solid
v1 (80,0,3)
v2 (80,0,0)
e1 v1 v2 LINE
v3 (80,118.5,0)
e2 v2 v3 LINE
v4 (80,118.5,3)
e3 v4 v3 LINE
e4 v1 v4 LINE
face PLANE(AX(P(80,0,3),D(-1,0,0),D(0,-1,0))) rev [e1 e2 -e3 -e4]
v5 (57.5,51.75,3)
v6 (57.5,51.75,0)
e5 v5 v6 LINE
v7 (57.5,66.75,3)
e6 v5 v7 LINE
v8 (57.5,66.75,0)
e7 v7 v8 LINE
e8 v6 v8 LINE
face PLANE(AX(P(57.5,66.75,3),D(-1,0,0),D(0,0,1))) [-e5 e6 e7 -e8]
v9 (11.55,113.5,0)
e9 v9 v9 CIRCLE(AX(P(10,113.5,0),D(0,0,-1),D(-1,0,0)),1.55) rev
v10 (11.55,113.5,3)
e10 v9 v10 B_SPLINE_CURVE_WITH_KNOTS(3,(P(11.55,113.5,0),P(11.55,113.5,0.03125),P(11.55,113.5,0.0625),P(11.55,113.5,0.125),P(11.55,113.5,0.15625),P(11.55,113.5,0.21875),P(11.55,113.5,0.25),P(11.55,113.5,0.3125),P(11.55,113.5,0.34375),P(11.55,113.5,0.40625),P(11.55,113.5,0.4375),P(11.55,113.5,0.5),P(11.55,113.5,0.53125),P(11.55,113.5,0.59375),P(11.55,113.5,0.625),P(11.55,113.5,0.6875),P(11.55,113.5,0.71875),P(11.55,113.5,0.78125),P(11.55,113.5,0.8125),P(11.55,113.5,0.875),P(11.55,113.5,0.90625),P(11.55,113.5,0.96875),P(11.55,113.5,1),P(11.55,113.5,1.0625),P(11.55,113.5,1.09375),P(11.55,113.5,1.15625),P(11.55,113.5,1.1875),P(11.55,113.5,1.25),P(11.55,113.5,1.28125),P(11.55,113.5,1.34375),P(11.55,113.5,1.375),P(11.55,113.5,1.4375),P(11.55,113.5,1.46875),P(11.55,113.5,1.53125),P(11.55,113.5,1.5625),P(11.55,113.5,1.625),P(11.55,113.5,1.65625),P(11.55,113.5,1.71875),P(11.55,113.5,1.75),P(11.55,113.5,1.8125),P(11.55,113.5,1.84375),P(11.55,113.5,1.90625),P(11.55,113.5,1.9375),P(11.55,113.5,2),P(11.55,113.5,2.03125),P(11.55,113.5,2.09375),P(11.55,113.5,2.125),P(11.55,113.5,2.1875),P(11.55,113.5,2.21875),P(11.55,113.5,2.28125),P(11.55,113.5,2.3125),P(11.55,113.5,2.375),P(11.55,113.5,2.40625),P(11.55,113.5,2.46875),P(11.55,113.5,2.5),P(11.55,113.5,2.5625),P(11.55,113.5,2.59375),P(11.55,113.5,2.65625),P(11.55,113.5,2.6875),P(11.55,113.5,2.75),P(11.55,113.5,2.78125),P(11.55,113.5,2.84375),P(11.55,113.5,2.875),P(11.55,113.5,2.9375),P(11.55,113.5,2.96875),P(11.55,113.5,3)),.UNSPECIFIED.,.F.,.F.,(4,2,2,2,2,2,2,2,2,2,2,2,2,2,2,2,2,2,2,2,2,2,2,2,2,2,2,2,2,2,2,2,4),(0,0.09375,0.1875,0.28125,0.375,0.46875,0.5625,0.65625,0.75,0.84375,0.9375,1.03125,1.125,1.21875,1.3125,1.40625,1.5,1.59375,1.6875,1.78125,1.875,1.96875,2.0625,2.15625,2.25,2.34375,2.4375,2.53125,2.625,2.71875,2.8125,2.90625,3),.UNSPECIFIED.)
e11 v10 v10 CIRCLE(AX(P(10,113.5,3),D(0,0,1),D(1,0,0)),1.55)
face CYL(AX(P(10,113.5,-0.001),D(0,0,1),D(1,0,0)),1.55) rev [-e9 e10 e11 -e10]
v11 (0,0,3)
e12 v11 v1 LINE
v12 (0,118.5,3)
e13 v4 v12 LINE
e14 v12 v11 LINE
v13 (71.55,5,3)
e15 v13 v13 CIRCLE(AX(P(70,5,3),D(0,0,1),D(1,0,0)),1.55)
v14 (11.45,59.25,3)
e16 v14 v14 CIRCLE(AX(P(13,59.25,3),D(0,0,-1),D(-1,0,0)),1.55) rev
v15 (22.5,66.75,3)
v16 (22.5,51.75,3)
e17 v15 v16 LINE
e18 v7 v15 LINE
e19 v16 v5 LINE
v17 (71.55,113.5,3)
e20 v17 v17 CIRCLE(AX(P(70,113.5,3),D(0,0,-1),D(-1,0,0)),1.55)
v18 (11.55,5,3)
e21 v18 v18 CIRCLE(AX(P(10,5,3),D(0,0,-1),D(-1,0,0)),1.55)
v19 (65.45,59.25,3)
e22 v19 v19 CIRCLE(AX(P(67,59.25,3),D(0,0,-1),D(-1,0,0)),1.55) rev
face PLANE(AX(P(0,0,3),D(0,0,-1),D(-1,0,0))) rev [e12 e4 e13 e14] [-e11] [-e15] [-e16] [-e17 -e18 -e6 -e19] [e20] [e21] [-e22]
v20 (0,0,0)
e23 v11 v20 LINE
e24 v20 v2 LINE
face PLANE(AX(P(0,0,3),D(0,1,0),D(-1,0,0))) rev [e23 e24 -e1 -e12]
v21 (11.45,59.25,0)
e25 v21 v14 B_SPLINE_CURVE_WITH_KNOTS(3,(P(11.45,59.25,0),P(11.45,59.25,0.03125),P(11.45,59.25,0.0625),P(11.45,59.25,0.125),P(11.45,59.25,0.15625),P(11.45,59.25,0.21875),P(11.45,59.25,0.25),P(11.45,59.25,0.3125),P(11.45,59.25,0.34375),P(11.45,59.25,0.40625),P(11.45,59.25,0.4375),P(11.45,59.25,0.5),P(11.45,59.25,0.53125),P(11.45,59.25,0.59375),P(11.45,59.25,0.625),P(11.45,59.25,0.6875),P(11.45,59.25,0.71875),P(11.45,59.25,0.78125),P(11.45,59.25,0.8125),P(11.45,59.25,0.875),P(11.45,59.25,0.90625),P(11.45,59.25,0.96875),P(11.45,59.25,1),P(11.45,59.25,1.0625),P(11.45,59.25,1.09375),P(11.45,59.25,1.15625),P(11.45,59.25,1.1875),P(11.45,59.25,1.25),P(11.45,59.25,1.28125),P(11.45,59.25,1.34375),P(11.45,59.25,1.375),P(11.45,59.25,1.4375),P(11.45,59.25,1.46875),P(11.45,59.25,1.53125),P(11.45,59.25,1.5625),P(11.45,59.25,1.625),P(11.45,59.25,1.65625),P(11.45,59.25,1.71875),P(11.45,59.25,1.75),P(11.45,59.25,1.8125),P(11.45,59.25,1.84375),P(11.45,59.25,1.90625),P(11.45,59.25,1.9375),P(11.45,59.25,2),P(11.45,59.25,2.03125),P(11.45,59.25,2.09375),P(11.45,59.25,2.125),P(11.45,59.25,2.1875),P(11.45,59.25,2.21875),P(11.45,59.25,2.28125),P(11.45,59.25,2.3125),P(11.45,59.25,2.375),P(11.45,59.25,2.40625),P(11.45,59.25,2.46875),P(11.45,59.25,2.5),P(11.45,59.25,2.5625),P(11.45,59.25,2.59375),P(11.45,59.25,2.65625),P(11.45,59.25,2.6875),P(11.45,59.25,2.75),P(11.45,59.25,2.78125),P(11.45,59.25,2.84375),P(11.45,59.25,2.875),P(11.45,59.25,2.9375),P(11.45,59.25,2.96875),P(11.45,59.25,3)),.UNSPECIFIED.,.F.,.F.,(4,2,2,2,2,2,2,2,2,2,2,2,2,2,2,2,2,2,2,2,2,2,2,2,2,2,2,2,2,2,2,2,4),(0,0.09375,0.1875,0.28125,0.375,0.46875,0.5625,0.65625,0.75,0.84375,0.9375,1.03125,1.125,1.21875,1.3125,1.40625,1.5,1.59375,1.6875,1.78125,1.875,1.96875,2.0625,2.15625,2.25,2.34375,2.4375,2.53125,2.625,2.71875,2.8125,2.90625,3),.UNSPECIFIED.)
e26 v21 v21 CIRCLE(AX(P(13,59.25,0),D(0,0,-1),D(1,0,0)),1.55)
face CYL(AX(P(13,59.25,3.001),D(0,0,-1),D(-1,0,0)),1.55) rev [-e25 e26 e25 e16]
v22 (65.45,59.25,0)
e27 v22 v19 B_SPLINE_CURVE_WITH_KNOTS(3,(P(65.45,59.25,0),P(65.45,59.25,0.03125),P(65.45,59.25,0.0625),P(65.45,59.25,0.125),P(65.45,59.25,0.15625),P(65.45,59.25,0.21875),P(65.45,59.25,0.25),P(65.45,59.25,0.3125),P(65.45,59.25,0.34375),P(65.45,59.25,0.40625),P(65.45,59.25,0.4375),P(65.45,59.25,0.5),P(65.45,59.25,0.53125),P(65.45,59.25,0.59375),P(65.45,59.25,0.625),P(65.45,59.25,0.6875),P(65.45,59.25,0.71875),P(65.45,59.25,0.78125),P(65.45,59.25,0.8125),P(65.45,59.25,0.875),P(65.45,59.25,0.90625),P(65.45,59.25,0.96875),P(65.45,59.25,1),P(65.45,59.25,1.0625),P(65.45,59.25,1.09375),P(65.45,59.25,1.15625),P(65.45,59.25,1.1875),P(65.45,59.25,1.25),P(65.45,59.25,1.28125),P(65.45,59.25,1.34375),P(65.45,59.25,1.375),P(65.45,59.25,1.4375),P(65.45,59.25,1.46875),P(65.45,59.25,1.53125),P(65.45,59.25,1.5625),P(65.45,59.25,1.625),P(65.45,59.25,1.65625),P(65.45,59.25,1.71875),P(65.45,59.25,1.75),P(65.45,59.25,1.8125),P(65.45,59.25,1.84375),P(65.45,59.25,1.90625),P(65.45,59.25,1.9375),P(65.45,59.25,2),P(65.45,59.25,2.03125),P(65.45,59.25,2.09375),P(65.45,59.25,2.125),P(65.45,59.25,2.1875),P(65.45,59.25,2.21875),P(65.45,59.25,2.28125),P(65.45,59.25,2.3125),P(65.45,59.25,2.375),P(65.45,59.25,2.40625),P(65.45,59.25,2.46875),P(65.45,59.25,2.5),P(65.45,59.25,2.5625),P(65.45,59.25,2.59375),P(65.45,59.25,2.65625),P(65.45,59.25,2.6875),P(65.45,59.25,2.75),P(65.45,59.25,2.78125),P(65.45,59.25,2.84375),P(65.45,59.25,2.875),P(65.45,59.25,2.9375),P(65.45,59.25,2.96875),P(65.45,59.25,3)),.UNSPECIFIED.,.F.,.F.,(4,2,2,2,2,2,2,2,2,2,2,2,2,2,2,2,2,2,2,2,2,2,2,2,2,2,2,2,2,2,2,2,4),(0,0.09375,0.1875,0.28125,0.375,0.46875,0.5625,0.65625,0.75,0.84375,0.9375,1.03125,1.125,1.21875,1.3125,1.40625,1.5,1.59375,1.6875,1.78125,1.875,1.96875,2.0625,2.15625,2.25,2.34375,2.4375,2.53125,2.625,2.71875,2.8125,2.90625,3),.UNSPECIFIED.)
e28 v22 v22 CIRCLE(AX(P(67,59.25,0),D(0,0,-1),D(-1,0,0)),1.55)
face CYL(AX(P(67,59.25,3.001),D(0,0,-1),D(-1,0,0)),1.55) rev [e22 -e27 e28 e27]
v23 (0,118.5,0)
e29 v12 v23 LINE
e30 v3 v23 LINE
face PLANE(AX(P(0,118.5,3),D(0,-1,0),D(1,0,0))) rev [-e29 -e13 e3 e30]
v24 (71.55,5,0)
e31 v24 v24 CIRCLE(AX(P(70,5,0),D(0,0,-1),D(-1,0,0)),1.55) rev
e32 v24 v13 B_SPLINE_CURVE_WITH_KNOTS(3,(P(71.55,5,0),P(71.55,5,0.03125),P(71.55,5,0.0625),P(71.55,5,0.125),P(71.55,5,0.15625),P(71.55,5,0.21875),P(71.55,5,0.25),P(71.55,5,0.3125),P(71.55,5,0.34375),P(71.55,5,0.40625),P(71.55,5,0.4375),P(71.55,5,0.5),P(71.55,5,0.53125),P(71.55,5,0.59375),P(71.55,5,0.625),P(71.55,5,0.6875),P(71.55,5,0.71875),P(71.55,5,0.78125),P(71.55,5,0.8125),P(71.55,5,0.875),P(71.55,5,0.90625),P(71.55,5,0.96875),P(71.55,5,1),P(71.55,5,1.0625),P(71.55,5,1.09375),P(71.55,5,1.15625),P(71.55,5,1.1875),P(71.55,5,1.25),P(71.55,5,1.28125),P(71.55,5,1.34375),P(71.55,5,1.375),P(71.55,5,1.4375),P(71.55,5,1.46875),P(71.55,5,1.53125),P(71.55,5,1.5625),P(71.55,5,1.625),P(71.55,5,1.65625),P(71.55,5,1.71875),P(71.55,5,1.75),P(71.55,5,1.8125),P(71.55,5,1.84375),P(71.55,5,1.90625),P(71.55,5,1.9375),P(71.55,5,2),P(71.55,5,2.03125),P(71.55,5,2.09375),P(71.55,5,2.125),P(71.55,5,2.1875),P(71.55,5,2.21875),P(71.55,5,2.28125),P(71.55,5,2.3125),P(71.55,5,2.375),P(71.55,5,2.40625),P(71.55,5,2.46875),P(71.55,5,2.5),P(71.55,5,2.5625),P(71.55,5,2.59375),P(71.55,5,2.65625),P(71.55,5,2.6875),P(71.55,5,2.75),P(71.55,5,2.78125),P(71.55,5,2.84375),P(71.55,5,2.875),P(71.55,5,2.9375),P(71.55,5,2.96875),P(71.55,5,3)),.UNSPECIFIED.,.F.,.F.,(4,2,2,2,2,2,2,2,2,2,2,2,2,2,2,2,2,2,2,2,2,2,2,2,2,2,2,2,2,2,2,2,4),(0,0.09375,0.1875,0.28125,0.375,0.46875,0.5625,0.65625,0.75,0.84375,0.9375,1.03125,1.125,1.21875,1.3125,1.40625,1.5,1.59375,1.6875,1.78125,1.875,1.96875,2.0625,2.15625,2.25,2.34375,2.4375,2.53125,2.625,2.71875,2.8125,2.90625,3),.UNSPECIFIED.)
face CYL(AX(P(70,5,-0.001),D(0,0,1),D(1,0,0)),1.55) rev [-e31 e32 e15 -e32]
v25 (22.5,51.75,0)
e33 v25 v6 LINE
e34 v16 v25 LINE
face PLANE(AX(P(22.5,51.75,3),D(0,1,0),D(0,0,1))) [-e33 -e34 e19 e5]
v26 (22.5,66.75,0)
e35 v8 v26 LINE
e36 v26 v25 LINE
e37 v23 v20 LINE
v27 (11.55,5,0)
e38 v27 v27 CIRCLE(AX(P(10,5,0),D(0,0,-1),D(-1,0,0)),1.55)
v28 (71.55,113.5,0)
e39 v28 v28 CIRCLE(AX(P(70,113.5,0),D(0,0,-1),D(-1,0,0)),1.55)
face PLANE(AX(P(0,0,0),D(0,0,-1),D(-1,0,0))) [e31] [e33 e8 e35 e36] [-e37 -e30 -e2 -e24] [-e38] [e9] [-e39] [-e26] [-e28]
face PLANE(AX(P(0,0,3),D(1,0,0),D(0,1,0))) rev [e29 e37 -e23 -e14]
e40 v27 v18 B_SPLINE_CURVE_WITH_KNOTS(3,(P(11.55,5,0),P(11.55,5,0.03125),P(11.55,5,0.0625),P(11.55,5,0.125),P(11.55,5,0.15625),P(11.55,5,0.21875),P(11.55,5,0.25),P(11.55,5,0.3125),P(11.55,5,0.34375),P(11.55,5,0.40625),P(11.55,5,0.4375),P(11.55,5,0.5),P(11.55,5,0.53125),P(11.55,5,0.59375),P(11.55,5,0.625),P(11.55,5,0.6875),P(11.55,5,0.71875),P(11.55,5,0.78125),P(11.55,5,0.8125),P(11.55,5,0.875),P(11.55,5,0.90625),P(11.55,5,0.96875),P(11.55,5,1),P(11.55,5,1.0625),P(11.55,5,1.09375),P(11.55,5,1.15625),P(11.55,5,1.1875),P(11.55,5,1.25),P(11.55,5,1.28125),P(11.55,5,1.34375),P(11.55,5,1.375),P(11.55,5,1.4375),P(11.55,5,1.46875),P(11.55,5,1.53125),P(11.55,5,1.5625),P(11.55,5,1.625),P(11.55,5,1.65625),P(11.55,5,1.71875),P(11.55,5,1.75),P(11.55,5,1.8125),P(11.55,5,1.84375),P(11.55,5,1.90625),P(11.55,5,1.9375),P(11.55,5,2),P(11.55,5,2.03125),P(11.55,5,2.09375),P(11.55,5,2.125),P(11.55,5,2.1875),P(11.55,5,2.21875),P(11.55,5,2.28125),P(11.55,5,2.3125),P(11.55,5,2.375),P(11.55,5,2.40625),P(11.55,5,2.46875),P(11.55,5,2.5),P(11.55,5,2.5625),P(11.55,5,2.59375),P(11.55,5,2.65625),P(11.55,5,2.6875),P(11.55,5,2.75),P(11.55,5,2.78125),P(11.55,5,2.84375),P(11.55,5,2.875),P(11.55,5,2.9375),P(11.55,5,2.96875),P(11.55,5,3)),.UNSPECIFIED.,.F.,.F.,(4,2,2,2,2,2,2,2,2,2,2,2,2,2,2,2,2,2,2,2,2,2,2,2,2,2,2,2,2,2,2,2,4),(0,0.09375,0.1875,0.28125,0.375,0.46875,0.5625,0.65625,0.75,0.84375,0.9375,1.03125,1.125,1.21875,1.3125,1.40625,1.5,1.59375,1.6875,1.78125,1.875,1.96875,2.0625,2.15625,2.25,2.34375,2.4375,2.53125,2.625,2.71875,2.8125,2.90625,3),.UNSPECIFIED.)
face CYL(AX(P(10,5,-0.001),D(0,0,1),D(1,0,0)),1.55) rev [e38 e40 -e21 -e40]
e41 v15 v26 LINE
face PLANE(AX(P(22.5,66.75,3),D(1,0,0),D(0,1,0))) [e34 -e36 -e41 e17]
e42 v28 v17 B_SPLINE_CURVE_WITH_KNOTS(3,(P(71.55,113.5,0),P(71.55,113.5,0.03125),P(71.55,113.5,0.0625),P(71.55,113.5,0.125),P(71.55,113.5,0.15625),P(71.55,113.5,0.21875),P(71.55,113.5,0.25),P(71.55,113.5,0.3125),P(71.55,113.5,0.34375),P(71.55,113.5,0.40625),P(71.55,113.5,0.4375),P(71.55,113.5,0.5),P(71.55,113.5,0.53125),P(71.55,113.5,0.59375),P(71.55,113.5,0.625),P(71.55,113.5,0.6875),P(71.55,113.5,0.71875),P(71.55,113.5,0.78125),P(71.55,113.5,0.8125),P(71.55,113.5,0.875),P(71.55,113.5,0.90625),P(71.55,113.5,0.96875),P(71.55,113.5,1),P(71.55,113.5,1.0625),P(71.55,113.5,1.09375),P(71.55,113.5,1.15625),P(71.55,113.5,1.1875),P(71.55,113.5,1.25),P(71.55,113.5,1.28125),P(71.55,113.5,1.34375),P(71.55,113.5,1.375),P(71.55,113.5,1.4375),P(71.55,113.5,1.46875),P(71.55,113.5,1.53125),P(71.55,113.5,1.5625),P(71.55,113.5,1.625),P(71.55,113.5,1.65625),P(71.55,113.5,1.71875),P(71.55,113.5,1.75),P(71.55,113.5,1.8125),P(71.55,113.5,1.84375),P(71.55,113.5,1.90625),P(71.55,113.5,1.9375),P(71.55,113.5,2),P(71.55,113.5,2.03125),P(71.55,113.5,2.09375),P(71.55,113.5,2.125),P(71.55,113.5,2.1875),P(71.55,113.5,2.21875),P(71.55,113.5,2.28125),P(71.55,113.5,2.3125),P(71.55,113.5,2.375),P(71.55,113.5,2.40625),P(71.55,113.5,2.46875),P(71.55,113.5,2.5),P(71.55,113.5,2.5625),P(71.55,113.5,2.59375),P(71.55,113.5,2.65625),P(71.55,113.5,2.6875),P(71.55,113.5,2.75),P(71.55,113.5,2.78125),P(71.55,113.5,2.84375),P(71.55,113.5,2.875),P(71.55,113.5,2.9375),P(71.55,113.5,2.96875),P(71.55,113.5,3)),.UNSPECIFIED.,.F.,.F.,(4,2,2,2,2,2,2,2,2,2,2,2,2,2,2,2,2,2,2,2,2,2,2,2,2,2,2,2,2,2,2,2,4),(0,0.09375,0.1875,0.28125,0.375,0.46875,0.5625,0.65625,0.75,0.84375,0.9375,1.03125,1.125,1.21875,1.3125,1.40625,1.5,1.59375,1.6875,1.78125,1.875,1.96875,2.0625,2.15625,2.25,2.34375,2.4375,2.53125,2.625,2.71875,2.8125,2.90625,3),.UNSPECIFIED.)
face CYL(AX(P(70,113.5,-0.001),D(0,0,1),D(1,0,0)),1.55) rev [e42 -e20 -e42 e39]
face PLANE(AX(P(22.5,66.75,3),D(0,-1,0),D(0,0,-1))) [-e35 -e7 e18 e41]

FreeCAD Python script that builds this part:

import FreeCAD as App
import Part
import Sketcher


def add_polygon(sketch, points):
    """Adds a closed chain of lines whose ends are joined by coincident constraints."""
    first, n = sketch.GeometryCount, len(points)
    for a, b in zip(points, points[1:] + points[:1]):
        sketch.addGeometry(Part.LineSegment(App.Vector(*a, 0), App.Vector(*b, 0)), False)
    for i in range(n):
        sketch.addConstraint(Sketcher.Constraint("Coincident", first + i, 2, first + (i + 1) % n, 1))

doc = App.newDocument("Part")
body = doc.addObject("PartDesign::Body", "Body")

# Sketch on XY plane
sketch1 = doc.addObject("Sketcher::SketchObject", "Sketch")
body.addObject(sketch1)
sketch1.AttachmentSupport = (doc.XY_Plane, [""])
sketch1.MapMode = "FlatFace"
add_polygon(sketch1, [(0, 118), (0, 0), (80, 0), (80, 118)])  # lines 0-3
add_polygon(sketch1, [(58, 52), (22, 52), (22, 67), (58, 67)])  # lines 4-7
sketch1.addConstraint([
    Sketcher.Constraint("Vertical", 0),
    Sketcher.Constraint("Horizontal", 1),
    Sketcher.Constraint("Vertical", 2),
    Sketcher.Constraint("Horizontal", 3),
    Sketcher.Constraint("Horizontal", 4),
    Sketcher.Constraint("Vertical", 5),
    Sketcher.Constraint("Horizontal", 6),
    Sketcher.Constraint("Vertical", 7),
    Sketcher.Constraint("Coincident", 0, 2, -1, 1),
    Sketcher.Constraint("DistanceX", 1, 1, 1, 2, 80.0),
    Sketcher.Constraint("DistanceX", 4, 2, 4, 1, 35.0),
    Sketcher.Constraint("DistanceY", 5, 1, 5, 2, 15.0),
    Sketcher.Constraint("DistanceY", 0, 2, 0, 1, 118.5),
    Sketcher.Constraint("DistanceX", -1, 1, 4, 2, 22.5),
    Sketcher.Constraint("DistanceY", -1, 1, 4, 2, 51.75),
])
pad1 = doc.addObject("PartDesign::Pad", "Pad")
body.addObject(pad1)
pad1.Profile = sketch1
pad1.Length = 3

# Sketch on XY plane
sketch2 = doc.addObject("Sketcher::SketchObject", "Sketch001")
body.addObject(sketch2)
sketch2.AttachmentSupport = (doc.XY_Plane, [""])
sketch2.MapMode = "FlatFace"
sketch2.AttachmentOffset = App.Placement(App.Vector(0, 0, 3), App.Rotation())
sketch2.addGeometry(Part.Circle(App.Vector(10, 113.5, 0), App.Vector(0, 0, 1), 1.6), False)
sketch2.addConstraint([
    Sketcher.Constraint("Diameter", 0, 3.1),
    Sketcher.Constraint("DistanceX", -1, 1, 0, 3, 10.0),
    Sketcher.Constraint("DistanceY", -1, 1, 0, 3, 113.5),
])
pocket1 = doc.addObject("PartDesign::Pocket", "Pocket")
body.addObject(pocket1)
pocket1.Profile = sketch2
pocket1.Type = "UpToFirst"

# Sketch on XY plane
sketch3 = doc.addObject("Sketcher::SketchObject", "Sketch002")
body.addObject(sketch3)
sketch3.AttachmentSupport = (doc.XY_Plane, [""])
sketch3.MapMode = "FlatFace"
sketch3.AttachmentOffset = App.Placement(App.Vector(0, 0, 3), App.Rotation())
sketch3.addGeometry(Part.Circle(App.Vector(70, 113.5, 0), App.Vector(0, 0, 1), 1.6), False)
sketch3.addConstraint([
    Sketcher.Constraint("Diameter", 0, 3.1),
    Sketcher.Constraint("DistanceX", -1, 1, 0, 3, 70.0),
    Sketcher.Constraint("DistanceY", -1, 1, 0, 3, 113.5),
])
pocket2 = doc.addObject("PartDesign::Pocket", "Pocket001")
body.addObject(pocket2)
pocket2.Profile = sketch3
pocket2.Type = "UpToFirst"

# Sketch on XY plane
sketch4 = doc.addObject("Sketcher::SketchObject", "Sketch003")
body.addObject(sketch4)
sketch4.AttachmentSupport = (doc.XY_Plane, [""])
sketch4.MapMode = "FlatFace"
sketch4.AttachmentOffset = App.Placement(App.Vector(0, 0, 3), App.Rotation())
sketch4.addGeometry(Part.Circle(App.Vector(70, 5, 0), App.Vector(0, 0, 1), 1.6), False)
sketch4.addConstraint([
    Sketcher.Constraint("Diameter", 0, 3.1),
    Sketcher.Constraint("DistanceX", -1, 1, 0, 3, 70.0),
    Sketcher.Constraint("DistanceY", -1, 1, 0, 3, 5.0),
])
pocket3 = doc.addObject("PartDesign::Pocket", "Pocket002")
body.addObject(pocket3)
pocket3.Profile = sketch4
pocket3.Type = "UpToFirst"

# Sketch on XY plane
sketch5 = doc.addObject("Sketcher::SketchObject", "Sketch004")
body.addObject(sketch5)
sketch5.AttachmentSupport = (doc.XY_Plane, [""])
sketch5.MapMode = "FlatFace"
sketch5.AttachmentOffset = App.Placement(App.Vector(0, 0, 3), App.Rotation())
sketch5.addGeometry(Part.Circle(App.Vector(10, 5, 0), App.Vector(0, 0, 1), 1.6), False)
sketch5.addConstraint([
    Sketcher.Constraint("Diameter", 0, 3.1),
    Sketcher.Constraint("DistanceX", -1, 1, 0, 3, 10.0),
    Sketcher.Constraint("DistanceY", -1, 1, 0, 3, 5.0),
])
pocket4 = doc.addObject("PartDesign::Pocket", "Pocket003")
body.addObject(pocket4)
pocket4.Profile = sketch5
pocket4.Type = "UpToFirst"

# Sketch on XY plane
sketch6 = doc.addObject("Sketcher::SketchObject", "Sketch005")
body.addObject(sketch6)
sketch6.AttachmentSupport = (doc.XY_Plane, [""])
sketch6.MapMode = "FlatFace"
sketch6.addGeometry(Part.Circle(App.Vector(67, 59.2, 0), App.Vector(0, 0, 1), 1.6), False)
sketch6.addConstraint([
    Sketcher.Constraint("Diameter", 0, 3.1),
    Sketcher.Constraint("DistanceX", -1, 1, 0, 3, 67.0),
    Sketcher.Constraint("DistanceY", -1, 1, 0, 3, 59.25),
])
pocket5 = doc.addObject("PartDesign::Pocket", "Pocket004")
body.addObject(pocket5)
pocket5.Profile = sketch6
pocket5.Type = "UpToFirst"
pocket5.Reversed = True

# Sketch on XY plane
sketch7 = doc.addObject("Sketcher::SketchObject", "Sketch006")
body.addObject(sketch7)
sketch7.AttachmentSupport = (doc.XY_Plane, [""])
sketch7.MapMode = "FlatFace"
sketch7.addGeometry(Part.Circle(App.Vector(13, 59.2, 0), App.Vector(0, 0, 1), 1.6), False)
sketch7.addConstraint([
    Sketcher.Constraint("Diameter", 0, 3.1),
    Sketcher.Constraint("DistanceX", -1, 1, 0, 3, 13.0),
    Sketcher.Constraint("DistanceY", -1, 1, 0, 3, 59.25),
])
pocket6 = doc.addObject("PartDesign::Pocket", "Pocket005")
body.addObject(pocket6)
pocket6.Profile = sketch7
pocket6.Type = "UpToFirst"
pocket6.Reversed = True

doc.recompute()
